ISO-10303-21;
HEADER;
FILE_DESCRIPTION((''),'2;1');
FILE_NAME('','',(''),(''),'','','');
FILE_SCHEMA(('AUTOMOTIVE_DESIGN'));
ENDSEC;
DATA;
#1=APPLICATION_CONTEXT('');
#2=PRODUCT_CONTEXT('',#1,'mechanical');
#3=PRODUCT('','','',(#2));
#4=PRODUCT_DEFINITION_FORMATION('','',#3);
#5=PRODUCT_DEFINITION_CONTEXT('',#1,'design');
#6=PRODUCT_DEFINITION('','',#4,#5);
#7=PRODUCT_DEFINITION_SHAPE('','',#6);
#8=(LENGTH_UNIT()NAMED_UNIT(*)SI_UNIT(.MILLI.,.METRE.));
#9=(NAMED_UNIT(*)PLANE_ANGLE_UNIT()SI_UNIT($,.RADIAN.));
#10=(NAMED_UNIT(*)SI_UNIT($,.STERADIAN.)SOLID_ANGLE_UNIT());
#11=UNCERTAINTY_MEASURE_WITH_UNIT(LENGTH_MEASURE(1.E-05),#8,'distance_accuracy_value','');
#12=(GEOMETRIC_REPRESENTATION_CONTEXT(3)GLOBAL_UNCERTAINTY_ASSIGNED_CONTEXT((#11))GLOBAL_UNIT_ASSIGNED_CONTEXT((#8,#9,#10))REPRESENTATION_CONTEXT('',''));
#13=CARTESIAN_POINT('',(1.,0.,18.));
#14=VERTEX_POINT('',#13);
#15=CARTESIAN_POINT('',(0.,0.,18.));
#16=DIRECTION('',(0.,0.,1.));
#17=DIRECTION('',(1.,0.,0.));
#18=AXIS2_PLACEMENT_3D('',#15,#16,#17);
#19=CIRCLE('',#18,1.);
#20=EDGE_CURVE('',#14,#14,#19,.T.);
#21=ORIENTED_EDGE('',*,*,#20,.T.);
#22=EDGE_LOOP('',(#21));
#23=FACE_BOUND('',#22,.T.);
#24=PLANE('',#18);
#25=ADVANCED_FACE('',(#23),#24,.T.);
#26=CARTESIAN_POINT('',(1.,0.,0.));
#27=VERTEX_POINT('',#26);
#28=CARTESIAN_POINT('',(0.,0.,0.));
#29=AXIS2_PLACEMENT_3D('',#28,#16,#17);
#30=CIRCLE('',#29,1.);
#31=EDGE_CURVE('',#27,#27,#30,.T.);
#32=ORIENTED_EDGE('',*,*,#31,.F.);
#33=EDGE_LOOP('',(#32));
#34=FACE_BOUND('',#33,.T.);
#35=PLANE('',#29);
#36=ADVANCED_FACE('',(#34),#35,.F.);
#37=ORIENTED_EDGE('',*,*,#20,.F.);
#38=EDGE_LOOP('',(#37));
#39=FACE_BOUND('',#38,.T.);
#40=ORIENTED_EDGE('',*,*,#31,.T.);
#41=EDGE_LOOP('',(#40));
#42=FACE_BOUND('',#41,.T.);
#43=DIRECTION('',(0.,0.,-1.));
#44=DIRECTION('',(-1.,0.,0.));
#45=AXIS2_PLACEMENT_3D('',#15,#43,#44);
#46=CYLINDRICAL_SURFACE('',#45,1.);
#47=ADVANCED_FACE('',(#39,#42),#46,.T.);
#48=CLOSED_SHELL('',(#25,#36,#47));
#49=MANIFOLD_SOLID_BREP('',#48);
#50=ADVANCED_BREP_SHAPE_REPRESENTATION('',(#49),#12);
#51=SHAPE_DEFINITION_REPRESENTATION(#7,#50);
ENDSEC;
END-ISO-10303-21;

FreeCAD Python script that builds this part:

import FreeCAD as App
import Part
import Sketcher
from FreeCAD import Vector

doc = App.newDocument("Part")
body = doc.addObject("PartDesign::Body", "Body")

# Sketch on XY plane
sketch1 = body.newObject("Sketcher::SketchObject", "Sketch")
sketch1.AttachmentSupport = (doc.getObject("XY_Plane"), [""])
sketch1.MapMode = "FlatFace"
sketch1.addGeometry(Part.Circle(Vector(0, 0, 0), Vector(0, 0, 1), 1), False)
sketch1.addConstraint(Sketcher.Constraint("Coincident", 0, 3, -1, 1))
sketch1.addConstraint(Sketcher.Constraint("Diameter", 0, 2.0))
pad1 = body.newObject("PartDesign::Pad", "Pad")
pad1.Profile = sketch1
pad1.Length = 18

doc.recompute()
